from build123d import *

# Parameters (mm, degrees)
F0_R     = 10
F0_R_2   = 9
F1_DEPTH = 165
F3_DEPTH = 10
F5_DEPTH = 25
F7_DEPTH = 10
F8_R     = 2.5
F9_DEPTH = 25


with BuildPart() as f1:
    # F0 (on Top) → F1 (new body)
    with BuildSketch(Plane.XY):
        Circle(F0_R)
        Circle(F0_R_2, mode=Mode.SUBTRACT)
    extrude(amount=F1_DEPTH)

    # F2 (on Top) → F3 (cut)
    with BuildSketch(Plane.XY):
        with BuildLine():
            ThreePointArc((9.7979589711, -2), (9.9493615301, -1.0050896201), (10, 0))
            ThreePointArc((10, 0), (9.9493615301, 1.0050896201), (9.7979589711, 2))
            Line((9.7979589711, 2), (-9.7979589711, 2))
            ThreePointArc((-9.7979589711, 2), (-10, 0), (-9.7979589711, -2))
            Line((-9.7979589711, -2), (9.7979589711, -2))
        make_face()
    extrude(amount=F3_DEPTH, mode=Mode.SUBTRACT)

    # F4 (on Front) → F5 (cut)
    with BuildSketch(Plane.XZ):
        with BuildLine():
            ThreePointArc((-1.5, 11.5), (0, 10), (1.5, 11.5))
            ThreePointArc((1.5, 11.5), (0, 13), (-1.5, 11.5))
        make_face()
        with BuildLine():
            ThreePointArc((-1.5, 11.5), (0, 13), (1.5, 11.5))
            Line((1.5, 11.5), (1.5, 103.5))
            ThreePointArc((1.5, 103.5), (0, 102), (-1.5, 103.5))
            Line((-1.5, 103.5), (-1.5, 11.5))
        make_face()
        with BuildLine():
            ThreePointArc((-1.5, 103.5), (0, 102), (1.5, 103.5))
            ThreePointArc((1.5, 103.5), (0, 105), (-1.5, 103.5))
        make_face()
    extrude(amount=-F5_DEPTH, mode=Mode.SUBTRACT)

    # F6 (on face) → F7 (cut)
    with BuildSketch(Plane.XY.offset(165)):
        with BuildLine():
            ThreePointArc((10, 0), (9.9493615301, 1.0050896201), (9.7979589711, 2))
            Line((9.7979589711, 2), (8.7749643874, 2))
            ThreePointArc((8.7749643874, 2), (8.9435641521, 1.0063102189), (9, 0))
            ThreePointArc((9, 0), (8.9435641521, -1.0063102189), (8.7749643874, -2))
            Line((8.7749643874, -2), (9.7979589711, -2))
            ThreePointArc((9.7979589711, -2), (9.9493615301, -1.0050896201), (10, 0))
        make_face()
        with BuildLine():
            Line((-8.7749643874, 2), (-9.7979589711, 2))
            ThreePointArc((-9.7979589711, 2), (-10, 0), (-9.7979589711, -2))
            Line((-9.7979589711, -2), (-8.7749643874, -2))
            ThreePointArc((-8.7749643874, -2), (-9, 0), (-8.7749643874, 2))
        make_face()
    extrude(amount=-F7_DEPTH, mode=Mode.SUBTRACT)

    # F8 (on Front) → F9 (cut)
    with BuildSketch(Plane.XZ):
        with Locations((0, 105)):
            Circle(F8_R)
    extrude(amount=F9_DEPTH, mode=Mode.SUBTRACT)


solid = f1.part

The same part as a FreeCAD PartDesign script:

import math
import FreeCAD as App
import Part
import Sketcher

V = App.Vector
Q = App.Units.Quantity

doc = App.newDocument("Part")
body = doc.addObject("PartDesign::Body", "Body")

# Sketch on XY plane
sketch1 = body.newObject("Sketcher::SketchObject", "Sketch")
sketch1.AttachmentSupport = (doc.getObject("XY_Plane"), [""])
sketch1.MapMode = "FlatFace"
sketch1.addGeometry([
    Part.Circle(V(0, 0, 0), V(0, 0, 1), 10),
    Part.Circle(V(0, 0, 0), V(0, 0, 1), 9),
], False)
sketch1.addConstraint([
    Sketcher.Constraint("Coincident", 0, 3, -1, 1),
    Sketcher.Constraint("Coincident", 1, 3, -1, 1),
    Sketcher.Constraint("Diameter", 0, Q("20 mm")),
    Sketcher.Constraint("Diameter", 1, Q("18 mm")),
])
pad1 = body.newObject("PartDesign::Pad", "Pad")
pad1.Profile = sketch1
pad1.Length = 165

# Sketch on XY plane
sketch2 = body.newObject("Sketcher::SketchObject", "Sketch001")
sketch2.AttachmentSupport = (doc.getObject("XY_Plane"), [""])
sketch2.MapMode = "FlatFace"
sketch2.addGeometry([
    Part.ArcOfCircle(Part.Circle(V(0, 0, 0), V(0, 0, 1), 10), math.radians(-11.536959), math.radians(0)),  # 0
    Part.ArcOfCircle(Part.Circle(V(0, 0, 0), V(0, 0, 1), 10), math.radians(0), math.radians(11.536959)),  # 1
    Part.LineSegment(V(9.797959, 2, 0), V(-9.797959, 2, 0)),  # 2
    Part.ArcOfCircle(Part.Circle(V(0, 0, 0), V(0, 0, 1), 10), math.radians(168.463041), math.radians(191.536959)),  # 3
    Part.LineSegment(V(-9.797959, -2, 0), V(9.797959, -2, 0)),  # 4
], False)
sketch2.addConstraint([
    Sketcher.Constraint("Tangent", 0, 2, 1, 1),
    Sketcher.Constraint("Coincident", 1, 2, 2, 1),
    Sketcher.Constraint("Coincident", 2, 2, 3, 1),
    Sketcher.Constraint("Coincident", 3, 2, 4, 1),
    Sketcher.Constraint("Coincident", 4, 2, 0, 1),
    Sketcher.Constraint("Horizontal", 2),
    Sketcher.Constraint("Horizontal", 4),
    Sketcher.Constraint("Coincident", 0, 3, -1, 1),
    Sketcher.Constraint("Coincident", 3, 3, -1, 1),
    Sketcher.Constraint("Equal", 0, 1),
    Sketcher.Constraint("Equal", 1, 3),
    Sketcher.Constraint("PointOnObject", 0, 2, -1),
    Sketcher.Constraint("Vertical", 2, 2, 3, 2),
    Sketcher.Constraint("Radius", 0, Q("10 mm")),
    Sketcher.Constraint("DistanceY", -1, 1, 1, 2, Q("2 mm")),
])
pocket1 = body.newObject("PartDesign::Pocket", "Pocket")
pocket1.Profile = sketch2
pocket1.Length = 10
pocket1.Reversed = True

# Sketch on XZ plane
sketch3 = body.newObject("Sketcher::SketchObject", "Sketch002")
sketch3.AttachmentSupport = (doc.getObject("XZ_Plane"), [""])
sketch3.MapMode = "FlatFace"
sketch3.addGeometry([
    Part.ArcOfCircle(Part.Circle(V(0, 11.5, 0), V(0, 0, 1), 1.5), math.radians(180), math.radians(360)),
    Part.LineSegment(V(1.5, 11.5, 0), V(1.5, 103.5, 0)),
    Part.ArcOfCircle(Part.Circle(V(0, 103.5, 0), V(0, 0, 1), 1.5), math.radians(0), math.radians(180)),
    Part.LineSegment(V(-1.5, 103.5, 0), V(-1.5, 11.5, 0)),
], False)
sketch3.addConstraint([
    Sketcher.Constraint("Tangent", 0, 2, 1, 1),
    Sketcher.Constraint("Tangent", 1, 2, 2, 1),
    Sketcher.Constraint("Tangent", 2, 2, 3, 1),
    Sketcher.Constraint("Tangent", 3, 2, 0, 1),
    Sketcher.Constraint("Vertical", 1),
    Sketcher.Constraint("Vertical", 3),
    Sketcher.Constraint("PointOnObject", 0, 3, -2),
    Sketcher.Constraint("Radius", 0, Q("1.5 mm")),
    Sketcher.Constraint("DistanceY", 1, 1, 1, 2, Q("92 mm")),
    Sketcher.Constraint("DistanceY", -1, 1, 0, 3, Q("11.5 mm")),
])
pocket2 = body.newObject("PartDesign::Pocket", "Pocket001")
pocket2.Profile = sketch3
pocket2.Length = 25

# Sketch on XY plane
sketch4 = body.newObject("Sketcher::SketchObject", "Sketch003")
sketch4.AttachmentSupport = (doc.getObject("XY_Plane"), [""])
sketch4.MapMode = "FlatFace"
sketch4.AttachmentOffset = App.Placement(V(0, 0, 165), App.Rotation())
sketch4.addGeometry([
    Part.ArcOfCircle(Part.Circle(V(0, 0, 0), V(0, 0, 1), 10), math.radians(0), math.radians(11.536959)),  # 0
    Part.LineSegment(V(9.797959, 2, 0), V(8.774964, 2, 0)),  # 1
    Part.ArcOfCircle(Part.Circle(V(0, 0, 0), V(0, 0, 1), 9), math.radians(0), math.radians(12.839588)),  # 2
    Part.ArcOfCircle(Part.Circle(V(0, 0, 0), V(0, 0, 1), 9), math.radians(-12.839588), math.radians(0)),  # 3
    Part.LineSegment(V(8.774964, -2, 0), V(9.797959, -2, 0)),  # 4
    Part.ArcOfCircle(Part.Circle(V(0, 0, 0), V(0, 0, 1), 10), math.radians(-11.536959), math.radians(0)),  # 5
    Part.LineSegment(V(-8.774964, 2, 0), V(-9.797959, 2, 0)),  # 6
    Part.ArcOfCircle(Part.Circle(V(0, 0, 0), V(0, 0, 1), 10), math.radians(168.463041), math.radians(191.536959)),  # 7
    Part.LineSegment(V(-9.797959, -2, 0), V(-8.774964, -2, 0)),  # 8
    Part.ArcOfCircle(Part.Circle(V(0, 0, 0), V(0, 0, 1), 9), math.radians(167.160412), math.radians(192.839588)),  # 9
], False)
sketch4.addConstraint([
    Sketcher.Constraint("Coincident", 0, 2, 1, 1),
    Sketcher.Constraint("Coincident", 1, 2, 2, 2),
    Sketcher.Constraint("Tangent", 2, 1, 3, 2),
    Sketcher.Constraint("Coincident", 3, 1, 4, 1),
    Sketcher.Constraint("Coincident", 4, 2, 5, 1),
    Sketcher.Constraint("Tangent", 5, 2, 0, 1),
    Sketcher.Constraint("Coincident", 6, 2, 7, 1),
    Sketcher.Constraint("Coincident", 7, 2, 8, 1),
    Sketcher.Constraint("Coincident", 8, 2, 9, 2),
    Sketcher.Constraint("Coincident", 9, 1, 6, 1),
    Sketcher.Constraint("Horizontal", 1),
    Sketcher.Constraint("Horizontal", 4),
    Sketcher.Constraint("Horizontal", 6),
    Sketcher.Constraint("Horizontal", 8),
    Sketcher.Constraint("Coincident", 0, 3, -1, 1),
    Sketcher.Constraint("Coincident", 2, 3, -1, 1),
    Sketcher.Constraint("Coincident", 7, 3, -1, 1),
    Sketcher.Constraint("Coincident", 9, 3, -1, 1),
    Sketcher.Constraint("Equal", 2, 3),
    Sketcher.Constraint("Equal", 0, 5),
    Sketcher.Constraint("Equal", 5, 7),
    Sketcher.Constraint("Equal", 3, 9),
    Sketcher.Constraint("PointOnObject", 2, 1, -1),
    Sketcher.Constraint("PointOnObject", 5, 2, -1),
    Sketcher.Constraint("Horizontal", 1, 2, 6, 2),
    Sketcher.Constraint("Horizontal", 4, 2, 7, 2),
    Sketcher.Constraint("Vertical", 1, 2, 3, 1),
    Sketcher.Constraint("Radius", 0, Q("10 mm")),
    Sketcher.Constraint("Radius", 2, Q("9 mm")),
    Sketcher.Constraint("DistanceY", -1, 1, 0, 2, Q("2 mm")),
])
pocket3 = body.newObject("PartDesign::Pocket", "Pocket002")
pocket3.Profile = sketch4
pocket3.Length = 10

# Sketch on XZ plane
sketch5 = body.newObject("Sketcher::SketchObject", "Sketch004")
sketch5.AttachmentSupport = (doc.getObject("XZ_Plane"), [""])
sketch5.MapMode = "FlatFace"
sketch5.addGeometry(Part.Circle(V(0, 105, 0), V(0, 0, 1), 2.5), False)
sketch5.addConstraint([
    Sketcher.Constraint("PointOnObject", 0, 3, -2),
    Sketcher.Constraint("Diameter", 0, Q("5 mm")),
    Sketcher.Constraint("DistanceY", -1, 1, 0, 3, Q("105 mm")),
])
pocket4 = body.newObject("PartDesign::Pocket", "Pocket003")
pocket4.Profile = sketch5
pocket4.Length = 25
pocket4.Reversed = True

doc.recompute()
